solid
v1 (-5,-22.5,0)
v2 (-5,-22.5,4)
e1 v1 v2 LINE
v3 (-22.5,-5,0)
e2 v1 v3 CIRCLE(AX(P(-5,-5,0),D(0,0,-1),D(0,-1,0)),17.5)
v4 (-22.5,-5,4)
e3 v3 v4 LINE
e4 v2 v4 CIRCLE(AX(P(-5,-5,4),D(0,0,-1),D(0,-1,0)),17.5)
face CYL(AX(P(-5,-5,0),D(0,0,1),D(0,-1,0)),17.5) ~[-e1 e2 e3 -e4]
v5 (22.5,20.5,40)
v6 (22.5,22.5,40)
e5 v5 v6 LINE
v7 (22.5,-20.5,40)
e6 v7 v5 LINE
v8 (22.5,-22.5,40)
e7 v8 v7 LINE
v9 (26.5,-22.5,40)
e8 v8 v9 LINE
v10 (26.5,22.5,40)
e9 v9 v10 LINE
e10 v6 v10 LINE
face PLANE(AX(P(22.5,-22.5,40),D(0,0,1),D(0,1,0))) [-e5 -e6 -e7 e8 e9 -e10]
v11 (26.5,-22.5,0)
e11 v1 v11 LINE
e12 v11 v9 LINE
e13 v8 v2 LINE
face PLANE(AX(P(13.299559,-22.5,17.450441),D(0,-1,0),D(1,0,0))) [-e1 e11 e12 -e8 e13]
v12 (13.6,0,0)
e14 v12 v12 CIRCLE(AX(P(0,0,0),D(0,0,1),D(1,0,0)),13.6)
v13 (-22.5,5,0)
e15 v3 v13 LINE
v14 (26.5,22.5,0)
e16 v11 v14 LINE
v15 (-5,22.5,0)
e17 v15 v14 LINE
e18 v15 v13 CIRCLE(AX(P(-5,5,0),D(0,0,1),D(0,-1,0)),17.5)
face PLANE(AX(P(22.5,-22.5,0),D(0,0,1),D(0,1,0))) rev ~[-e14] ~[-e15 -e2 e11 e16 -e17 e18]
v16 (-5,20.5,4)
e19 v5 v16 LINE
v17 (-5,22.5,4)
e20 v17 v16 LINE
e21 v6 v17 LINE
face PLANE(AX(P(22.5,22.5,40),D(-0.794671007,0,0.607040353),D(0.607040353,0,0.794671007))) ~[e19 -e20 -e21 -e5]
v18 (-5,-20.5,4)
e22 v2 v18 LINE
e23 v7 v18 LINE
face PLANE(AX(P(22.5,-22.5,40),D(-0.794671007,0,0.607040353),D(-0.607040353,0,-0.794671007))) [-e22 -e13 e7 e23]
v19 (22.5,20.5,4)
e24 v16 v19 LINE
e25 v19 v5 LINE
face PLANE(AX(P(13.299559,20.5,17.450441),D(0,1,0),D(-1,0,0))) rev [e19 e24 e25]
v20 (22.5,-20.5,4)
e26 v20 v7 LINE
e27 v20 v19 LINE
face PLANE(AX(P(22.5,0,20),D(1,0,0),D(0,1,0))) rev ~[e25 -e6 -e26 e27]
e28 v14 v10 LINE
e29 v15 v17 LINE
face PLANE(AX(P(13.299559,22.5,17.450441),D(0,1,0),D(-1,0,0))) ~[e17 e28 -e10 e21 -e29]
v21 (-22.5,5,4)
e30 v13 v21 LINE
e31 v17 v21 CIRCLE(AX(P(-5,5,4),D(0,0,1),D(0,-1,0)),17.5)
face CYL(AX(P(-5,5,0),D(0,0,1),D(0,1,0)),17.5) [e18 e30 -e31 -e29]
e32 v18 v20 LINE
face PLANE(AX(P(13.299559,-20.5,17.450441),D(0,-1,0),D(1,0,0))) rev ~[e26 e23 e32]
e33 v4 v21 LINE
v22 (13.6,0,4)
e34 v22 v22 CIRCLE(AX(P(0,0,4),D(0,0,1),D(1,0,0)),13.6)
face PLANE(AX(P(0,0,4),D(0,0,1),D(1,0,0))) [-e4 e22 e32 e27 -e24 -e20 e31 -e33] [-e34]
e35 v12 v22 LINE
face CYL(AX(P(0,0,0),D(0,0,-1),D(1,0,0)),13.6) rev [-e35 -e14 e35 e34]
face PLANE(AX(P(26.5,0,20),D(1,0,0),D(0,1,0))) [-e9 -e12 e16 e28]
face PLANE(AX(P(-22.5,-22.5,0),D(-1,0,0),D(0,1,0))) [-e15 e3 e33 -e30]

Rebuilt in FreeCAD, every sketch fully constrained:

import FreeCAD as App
import Part
import Sketcher


def edges_at(feature, points):
    """Names of the edges that pass closest to the given points."""
    edges = feature.Shape.Edges
    near = lambda p: min(range(len(edges)), key=lambda i: edges[i].distToShape(Part.Vertex(*p))[0])
    return sorted({f"Edge{near(p) + 1}" for p in points})


def add_polygon(sketch, points):
    """Adds a closed chain of lines whose ends are joined by coincident constraints."""
    first, n = sketch.GeometryCount, len(points)
    for a, b in zip(points, points[1:] + points[:1]):
        sketch.addGeometry(Part.LineSegment(App.Vector(*a, 0), App.Vector(*b, 0)), False)
    for i in range(n):
        sketch.addConstraint(Sketcher.Constraint("Coincident", first + i, 2, first + (i + 1) % n, 1))

doc = App.newDocument("Part")
body = doc.addObject("PartDesign::Body", "Body")

sketch1 = body.newObject("Sketcher::SketchObject", "Sketch")
sketch1.AttachmentSupport = (doc.getObject("XY_Plane"), [""])
sketch1.MapMode = "FlatFace"
add_polygon(sketch1, [(-22.5, 22.5), (-22.5, -22.5), (22.5, -22.5), (22.5, 22.5)])
sketch1.addGeometry(Part.Circle(App.Vector(0, 0, 0), App.Vector(0, 0, 1), 13.6), False)
sketch1.addConstraint([
    Sketcher.Constraint("Vertical", 0),
    Sketcher.Constraint("Horizontal", 1),
    Sketcher.Constraint("Vertical", 2),
    Sketcher.Constraint("Horizontal", 3),
    Sketcher.Constraint("Coincident", 4, 3, -1, 1),
    Sketcher.Constraint("Symmetric", 0, 2, 2, 2, -1, 1),
    Sketcher.Constraint("Equal", 3, 0),
    Sketcher.Constraint("Diameter", 4, 27.2),
    Sketcher.Constraint("DistanceX", 1, 1, 1, 2, 45.0),
])
pad1 = body.newObject("PartDesign::Pad", "Pad")
pad1.Profile = sketch1
pad1.Length = 4

sketch2 = body.newObject("Sketcher::SketchObject", "Sketch001")
sketch2.AttachmentSupport = (doc.getObject("YZ_Plane"), [""])
sketch2.MapMode = "FlatFace"
sketch2.AttachmentOffset = App.Placement(App.Vector(0, 0, 22.5), App.Rotation())
add_polygon(sketch2, [(-22.5, 40), (-22.5, 0), (22.5, 0), (22.5, 40)])
sketch2.addConstraint([
    Sketcher.Constraint("Vertical", 0),
    Sketcher.Constraint("Horizontal", 1),
    Sketcher.Constraint("Vertical", 2),
    Sketcher.Constraint("Horizontal", 3),
    Sketcher.Constraint("Symmetric", 0, 2, 1, 2, -1, 1),
    Sketcher.Constraint("DistanceX", 1, 1, 1, 2, 45.0),
    Sketcher.Constraint("DistanceY", 0, 2, 0, 1, 40.0),
])
pad2 = body.newObject("PartDesign::Pad", "Pad001")
pad2.Profile = sketch2
pad2.Length = 4
doc.recompute()

fillet = body.newObject("PartDesign::Fillet", "Fillet")
fillet.Base = (pad2, edges_at(pad2, [(-22.5, 22.5, 2), (-22.5, -22.5, 2)]))
fillet.Radius = 17.5

sketch3 = body.newObject("Sketcher::SketchObject", "Sketch002")
sketch3.AttachmentSupport = (doc.getObject("XZ_Plane"), [""])
sketch3.MapMode = "FlatFace"
sketch3.AttachmentOffset = App.Placement(App.Vector(0, 0, 22.5), App.Rotation())
add_polygon(sketch3, [(-5, 4), (22.5, 4), (22.5, 40)])
sketch3.addConstraint([
    Sketcher.Constraint("Horizontal", 0),
    Sketcher.Constraint("Vertical", 1),
    Sketcher.Constraint("DistanceY", 1, 1, 1, 2, 36.0),
    Sketcher.Constraint("DistanceX", 0, 1, 0, 2, 27.5),
    Sketcher.Constraint("DistanceY", -1, 1, 0, 2, 4.0),
    Sketcher.Constraint("DistanceX", 2, 2, -1, 1, 5.0),
])
pad3 = body.newObject("PartDesign::Pad", "Pad002")
pad3.Profile = sketch3
pad3.Length = 2
pad3.Reversed = True
doc.recompute()

mirrored = body.newObject("PartDesign::Mirrored", "Mirrored")
mirrored.Originals = [pad3]
mirrored.MirrorPlane = (doc.getObject("XZ_Plane"), [""])
body.Tip = mirrored

doc.recompute()
